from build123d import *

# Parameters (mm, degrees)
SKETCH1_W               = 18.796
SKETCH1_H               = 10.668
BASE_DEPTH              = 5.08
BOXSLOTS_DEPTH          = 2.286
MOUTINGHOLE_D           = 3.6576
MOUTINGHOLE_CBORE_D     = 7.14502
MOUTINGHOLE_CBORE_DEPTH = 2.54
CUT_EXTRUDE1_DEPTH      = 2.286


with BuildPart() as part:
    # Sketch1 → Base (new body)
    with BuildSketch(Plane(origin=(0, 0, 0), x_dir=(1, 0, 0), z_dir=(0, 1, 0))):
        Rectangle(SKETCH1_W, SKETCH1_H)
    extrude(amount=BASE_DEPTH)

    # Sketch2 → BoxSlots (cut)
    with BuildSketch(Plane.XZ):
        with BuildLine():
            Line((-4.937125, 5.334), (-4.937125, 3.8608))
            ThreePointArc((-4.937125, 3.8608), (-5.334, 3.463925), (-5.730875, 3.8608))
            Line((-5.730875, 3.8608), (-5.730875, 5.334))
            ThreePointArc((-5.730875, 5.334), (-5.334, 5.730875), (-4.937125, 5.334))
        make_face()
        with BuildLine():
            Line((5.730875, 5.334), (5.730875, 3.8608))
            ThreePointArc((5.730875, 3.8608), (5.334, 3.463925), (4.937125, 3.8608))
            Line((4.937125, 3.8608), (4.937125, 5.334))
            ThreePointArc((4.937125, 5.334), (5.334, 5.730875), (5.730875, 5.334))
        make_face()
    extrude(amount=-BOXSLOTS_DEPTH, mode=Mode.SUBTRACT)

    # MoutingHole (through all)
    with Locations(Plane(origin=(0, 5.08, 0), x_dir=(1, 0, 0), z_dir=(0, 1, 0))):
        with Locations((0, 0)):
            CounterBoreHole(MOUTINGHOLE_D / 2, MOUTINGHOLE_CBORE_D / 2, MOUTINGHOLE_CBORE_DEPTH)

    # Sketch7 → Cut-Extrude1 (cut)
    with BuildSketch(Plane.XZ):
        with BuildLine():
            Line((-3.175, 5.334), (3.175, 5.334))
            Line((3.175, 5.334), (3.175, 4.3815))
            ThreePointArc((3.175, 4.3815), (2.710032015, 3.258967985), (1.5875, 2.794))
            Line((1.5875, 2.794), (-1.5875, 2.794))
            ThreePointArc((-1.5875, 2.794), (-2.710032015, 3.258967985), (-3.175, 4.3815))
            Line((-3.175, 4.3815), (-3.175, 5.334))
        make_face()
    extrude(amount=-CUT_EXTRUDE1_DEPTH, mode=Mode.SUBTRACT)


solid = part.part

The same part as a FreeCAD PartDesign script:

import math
import FreeCAD as App
import Part
import Sketcher
Q = App.Units.Quantity

doc = App.newDocument("Part")
params = doc.addObject("Spreadsheet::Sheet", "Params")
for row, (alias, value) in enumerate([
    ("sketch1_width", "0.74 in"),
    ("sketch1_height", "0.42 in"),
    ("pad1_length", "0.2 in"),
    ("sketch2_radius", "0.015625 in"),
    ("sketch2_height", "0.058 in"),
    ("pocket1_length", "0.09 in"),
    ("sketch3_diameter", "0.144 in"),
    ("hole_diameter", "0.144 in"),
    ("hole_cbore_diameter", "0.2813 in"),
    ("hole_cbore_depth", "0.1 in"),
    ("sketch4_radius", "0.0625 in"),
    ("sketch4_width", "0.25 in"),
    ("pocket2_length", "0.09 in"),
], start=1):
    params.set(f"A{row}", alias)
    params.set(f"B{row}", "=" + value)
    params.setAlias(f"B{row}", alias)

body = doc.addObject("PartDesign::Body", "Body")

# Sketch on XZ plane
sketch1 = body.newObject("Sketcher::SketchObject", "Sketch")
sketch1.AttachmentSupport = (doc.getObject("XZ_Plane"), [""])
sketch1.MapMode = "FlatFace"
sketch1.addGeometry(Part.LineSegment(App.Vector(-9.398, -5.334, 0), App.Vector(-9.398, 5.334, 0)), False)
sketch1.addGeometry(Part.LineSegment(App.Vector(-9.398, 5.334, 0), App.Vector(9.398, 5.334, 0)), False)
sketch1.addGeometry(Part.LineSegment(App.Vector(9.398, 5.334, 0), App.Vector(9.398, -5.334, 0)), False)
sketch1.addGeometry(Part.LineSegment(App.Vector(9.398, -5.334, 0), App.Vector(-9.398, -5.334, 0)), False)
sketch1.addConstraint(Sketcher.Constraint("Coincident", 0, 2, 1, 1))
sketch1.addConstraint(Sketcher.Constraint("Coincident", 1, 2, 2, 1))
sketch1.addConstraint(Sketcher.Constraint("Coincident", 2, 2, 3, 1))
sketch1.addConstraint(Sketcher.Constraint("Coincident", 3, 2, 0, 1))
sketch1.addConstraint(Sketcher.Constraint("Vertical", 0))
sketch1.addConstraint(Sketcher.Constraint("Horizontal", 1))
sketch1.addConstraint(Sketcher.Constraint("Vertical", 2))
sketch1.addConstraint(Sketcher.Constraint("Horizontal", 3))
sketch1.addConstraint(Sketcher.Constraint("Symmetric", 0, 2, 2, 2, -1, 1))
sketch1.addConstraint(Sketcher.Constraint("DistanceX", 1, 1, 1, 2, Q("0.74 in")))
sketch1.addConstraint(Sketcher.Constraint("DistanceY", 0, 1, 0, 2, Q("0.42 in")))
sketch1.setExpression("Constraints[9]", "Params.sketch1_width")
sketch1.setExpression("Constraints[10]", "Params.sketch1_height")
pad1 = body.newObject("PartDesign::Pad", "Pad")
pad1.Profile = sketch1
pad1.setExpression("Length", "Params.pad1_length")
pad1.Reversed = True

# Sketch on XZ plane
sketch2 = body.newObject("Sketcher::SketchObject", "Sketch001")
sketch2.AttachmentSupport = (doc.getObject("XZ_Plane"), [""])
sketch2.MapMode = "FlatFace"
sketch2.addGeometry(Part.LineSegment(App.Vector(-4.937125, 3.8608, 0), App.Vector(-4.937125, 5.334, 0)), False)
sketch2.addGeometry(Part.ArcOfCircle(Part.Circle(App.Vector(-5.334, 5.334, 0), App.Vector(0, 0, 1), 0.396875), math.radians(0), math.radians(180)), False)
sketch2.addGeometry(Part.LineSegment(App.Vector(-5.730875, 5.334, 0), App.Vector(-5.730875, 3.8608, 0)), False)
sketch2.addGeometry(Part.ArcOfCircle(Part.Circle(App.Vector(-5.334, 3.8608, 0), App.Vector(0, 0, 1), 0.396875), math.radians(180), math.radians(360)), False)
sketch2.addGeometry(Part.LineSegment(App.Vector(5.730875, 3.8608, 0), App.Vector(5.730875, 5.334, 0)), False)
sketch2.addGeometry(Part.ArcOfCircle(Part.Circle(App.Vector(5.334, 5.334, 0), App.Vector(0, 0, 1), 0.396875), math.radians(0), math.radians(180)), False)
sketch2.addGeometry(Part.LineSegment(App.Vector(4.937125, 5.334, 0), App.Vector(4.937125, 3.8608, 0)), False)
sketch2.addGeometry(Part.ArcOfCircle(Part.Circle(App.Vector(5.334, 3.8608, 0), App.Vector(0, 0, 1), 0.396875), math.radians(180), math.radians(360)), False)
sketch2.addConstraint(Sketcher.Constraint("Tangent", 0, 2, 1, 1))
sketch2.addConstraint(Sketcher.Constraint("Tangent", 1, 2, 2, 1))
sketch2.addConstraint(Sketcher.Constraint("Tangent", 2, 2, 3, 1))
sketch2.addConstraint(Sketcher.Constraint("Tangent", 3, 2, 0, 1))
sketch2.addConstraint(Sketcher.Constraint("Tangent", 4, 2, 5, 1))
sketch2.addConstraint(Sketcher.Constraint("Tangent", 5, 2, 6, 1))
sketch2.addConstraint(Sketcher.Constraint("Tangent", 6, 2, 7, 1))
sketch2.addConstraint(Sketcher.Constraint("Tangent", 7, 2, 4, 1))
sketch2.addConstraint(Sketcher.Constraint("Vertical", 0))
sketch2.addConstraint(Sketcher.Constraint("Vertical", 2))
sketch2.addConstraint(Sketcher.Constraint("Vertical", 4))
sketch2.addConstraint(Sketcher.Constraint("Vertical", 6))
sketch2.addConstraint(Sketcher.Constraint("Equal", 3, 5))
sketch2.addConstraint(Sketcher.Constraint("Symmetric", 1, 3, 5, 3, -2))
sketch2.addConstraint(Sketcher.Constraint("Horizontal", 3, 3, 7, 3))
sketch2.addConstraint(Sketcher.Constraint("Radius", 1, Q("0.015625 in")))
sketch2.addConstraint(Sketcher.Constraint("DistanceY", 0, 1, 0, 2, Q("0.058 in")))
sketch2.addConstraint(Sketcher.Constraint("DistanceX", 1, 3, -1, 1, Q("0.21 in")))
sketch2.addConstraint(Sketcher.Constraint("DistanceY", -1, 1, 1, 3, Q("0.21 in")))
sketch2.setExpression("Constraints[15]", "Params.sketch2_radius")
sketch2.setExpression("Constraints[16]", "Params.sketch2_height")
pocket1 = body.newObject("PartDesign::Pocket", "Pocket")
pocket1.Profile = sketch2
pocket1.setExpression("Length", "Params.pocket1_length")

# Sketch on XZ plane
sketch3 = body.newObject("Sketcher::SketchObject", "Sketch002")
sketch3.AttachmentSupport = (doc.getObject("XZ_Plane"), [""])
sketch3.MapMode = "FlatFace"
sketch3.AttachmentOffset = App.Placement(App.Vector(0, 0, -0.2 * 25.4), App.Rotation())
sketch3.addGeometry(Part.Circle(App.Vector(0, 0, 0), App.Vector(0, 0, 1), 1.8288), False)
sketch3.addConstraint(Sketcher.Constraint("Coincident", 0, 3, -1, 1))
sketch3.addConstraint(Sketcher.Constraint("Diameter", 0, Q("0.144 in")))
sketch3.setExpression("Constraints[1]", "Params.sketch3_diameter")
doc.recompute()
hole = body.newObject("PartDesign::Hole", "Hole")
hole.Profile = sketch3
hole.ThreadType = "None"
hole.setExpression("Diameter", "Params.hole_diameter")
hole.DepthType = "ThroughAll"
hole.HoleCutType = "Counterbore"
hole.setExpression("HoleCutDiameter", "Params.hole_cbore_diameter")
hole.setExpression("HoleCutDepth", "Params.hole_cbore_depth")
hole.Reversed = True

# Sketch on XZ plane
sketch4 = body.newObject("Sketcher::SketchObject", "Sketch003")
sketch4.AttachmentSupport = (doc.getObject("XZ_Plane"), [""])
sketch4.MapMode = "FlatFace"
sketch4.addGeometry(Part.LineSegment(App.Vector(3.175, 5.334, 0), App.Vector(-3.175, 5.334, 0)), False)
sketch4.addGeometry(Part.LineSegment(App.Vector(-3.175, 5.334, 0), App.Vector(-3.175, 4.3815, 0)), False)
sketch4.addGeometry(Part.ArcOfCircle(Part.Circle(App.Vector(-1.5875, 4.3815, 0), App.Vector(0, 0, 1), 1.5875), math.radians(180), math.radians(270)), False)
sketch4.addGeometry(Part.LineSegment(App.Vector(-1.5875, 2.794, 0), App.Vector(1.5875, 2.794, 0)), False)
sketch4.addGeometry(Part.ArcOfCircle(Part.Circle(App.Vector(1.5875, 4.3815, 0), App.Vector(0, 0, 1), 1.5875), math.radians(-90), math.radians(0)), False)
sketch4.addGeometry(Part.LineSegment(App.Vector(3.175, 4.3815, 0), App.Vector(3.175, 5.334, 0)), False)
sketch4.addConstraint(Sketcher.Constraint("Coincident", 0, 2, 1, 1))
sketch4.addConstraint(Sketcher.Constraint("Tangent", 1, 2, 2, 1))
sketch4.addConstraint(Sketcher.Constraint("Tangent", 2, 2, 3, 1))
sketch4.addConstraint(Sketcher.Constraint("Tangent", 3, 2, 4, 1))
sketch4.addConstraint(Sketcher.Constraint("Tangent", 4, 2, 5, 1))
sketch4.addConstraint(Sketcher.Constraint("Coincident", 5, 2, 0, 1))
sketch4.addConstraint(Sketcher.Constraint("Horizontal", 0))
sketch4.addConstraint(Sketcher.Constraint("Vertical", 1))
sketch4.addConstraint(Sketcher.Constraint("Horizontal", 3))
sketch4.addConstraint(Sketcher.Constraint("Vertical", 5))
sketch4.addConstraint(Sketcher.Constraint("Equal", 2, 4))
sketch4.addConstraint(Sketcher.Constraint("Radius", 2, Q("0.0625 in")))
sketch4.addConstraint(Sketcher.Constraint("DistanceX", 0, 2, 0, 1, Q("0.25 in")))
sketch4.addConstraint(Sketcher.Constraint("DistanceY", 2, 2, 0, 2, Q("0.1 in")))
sketch4.addConstraint(Sketcher.Constraint("DistanceY", -1, 1, 0, 2, Q("0.21 in")))
sketch4.addConstraint(Sketcher.Constraint("DistanceX", 2, 3, -1, 1, Q("0.0625 in")))
sketch4.setExpression("Constraints[11]", "Params.sketch4_radius")
sketch4.setExpression("Constraints[12]", "Params.sketch4_width")
pocket2 = body.newObject("PartDesign::Pocket", "Pocket001")
pocket2.Profile = sketch4
pocket2.setExpression("Length", "Params.pocket2_length")

doc.recompute()
